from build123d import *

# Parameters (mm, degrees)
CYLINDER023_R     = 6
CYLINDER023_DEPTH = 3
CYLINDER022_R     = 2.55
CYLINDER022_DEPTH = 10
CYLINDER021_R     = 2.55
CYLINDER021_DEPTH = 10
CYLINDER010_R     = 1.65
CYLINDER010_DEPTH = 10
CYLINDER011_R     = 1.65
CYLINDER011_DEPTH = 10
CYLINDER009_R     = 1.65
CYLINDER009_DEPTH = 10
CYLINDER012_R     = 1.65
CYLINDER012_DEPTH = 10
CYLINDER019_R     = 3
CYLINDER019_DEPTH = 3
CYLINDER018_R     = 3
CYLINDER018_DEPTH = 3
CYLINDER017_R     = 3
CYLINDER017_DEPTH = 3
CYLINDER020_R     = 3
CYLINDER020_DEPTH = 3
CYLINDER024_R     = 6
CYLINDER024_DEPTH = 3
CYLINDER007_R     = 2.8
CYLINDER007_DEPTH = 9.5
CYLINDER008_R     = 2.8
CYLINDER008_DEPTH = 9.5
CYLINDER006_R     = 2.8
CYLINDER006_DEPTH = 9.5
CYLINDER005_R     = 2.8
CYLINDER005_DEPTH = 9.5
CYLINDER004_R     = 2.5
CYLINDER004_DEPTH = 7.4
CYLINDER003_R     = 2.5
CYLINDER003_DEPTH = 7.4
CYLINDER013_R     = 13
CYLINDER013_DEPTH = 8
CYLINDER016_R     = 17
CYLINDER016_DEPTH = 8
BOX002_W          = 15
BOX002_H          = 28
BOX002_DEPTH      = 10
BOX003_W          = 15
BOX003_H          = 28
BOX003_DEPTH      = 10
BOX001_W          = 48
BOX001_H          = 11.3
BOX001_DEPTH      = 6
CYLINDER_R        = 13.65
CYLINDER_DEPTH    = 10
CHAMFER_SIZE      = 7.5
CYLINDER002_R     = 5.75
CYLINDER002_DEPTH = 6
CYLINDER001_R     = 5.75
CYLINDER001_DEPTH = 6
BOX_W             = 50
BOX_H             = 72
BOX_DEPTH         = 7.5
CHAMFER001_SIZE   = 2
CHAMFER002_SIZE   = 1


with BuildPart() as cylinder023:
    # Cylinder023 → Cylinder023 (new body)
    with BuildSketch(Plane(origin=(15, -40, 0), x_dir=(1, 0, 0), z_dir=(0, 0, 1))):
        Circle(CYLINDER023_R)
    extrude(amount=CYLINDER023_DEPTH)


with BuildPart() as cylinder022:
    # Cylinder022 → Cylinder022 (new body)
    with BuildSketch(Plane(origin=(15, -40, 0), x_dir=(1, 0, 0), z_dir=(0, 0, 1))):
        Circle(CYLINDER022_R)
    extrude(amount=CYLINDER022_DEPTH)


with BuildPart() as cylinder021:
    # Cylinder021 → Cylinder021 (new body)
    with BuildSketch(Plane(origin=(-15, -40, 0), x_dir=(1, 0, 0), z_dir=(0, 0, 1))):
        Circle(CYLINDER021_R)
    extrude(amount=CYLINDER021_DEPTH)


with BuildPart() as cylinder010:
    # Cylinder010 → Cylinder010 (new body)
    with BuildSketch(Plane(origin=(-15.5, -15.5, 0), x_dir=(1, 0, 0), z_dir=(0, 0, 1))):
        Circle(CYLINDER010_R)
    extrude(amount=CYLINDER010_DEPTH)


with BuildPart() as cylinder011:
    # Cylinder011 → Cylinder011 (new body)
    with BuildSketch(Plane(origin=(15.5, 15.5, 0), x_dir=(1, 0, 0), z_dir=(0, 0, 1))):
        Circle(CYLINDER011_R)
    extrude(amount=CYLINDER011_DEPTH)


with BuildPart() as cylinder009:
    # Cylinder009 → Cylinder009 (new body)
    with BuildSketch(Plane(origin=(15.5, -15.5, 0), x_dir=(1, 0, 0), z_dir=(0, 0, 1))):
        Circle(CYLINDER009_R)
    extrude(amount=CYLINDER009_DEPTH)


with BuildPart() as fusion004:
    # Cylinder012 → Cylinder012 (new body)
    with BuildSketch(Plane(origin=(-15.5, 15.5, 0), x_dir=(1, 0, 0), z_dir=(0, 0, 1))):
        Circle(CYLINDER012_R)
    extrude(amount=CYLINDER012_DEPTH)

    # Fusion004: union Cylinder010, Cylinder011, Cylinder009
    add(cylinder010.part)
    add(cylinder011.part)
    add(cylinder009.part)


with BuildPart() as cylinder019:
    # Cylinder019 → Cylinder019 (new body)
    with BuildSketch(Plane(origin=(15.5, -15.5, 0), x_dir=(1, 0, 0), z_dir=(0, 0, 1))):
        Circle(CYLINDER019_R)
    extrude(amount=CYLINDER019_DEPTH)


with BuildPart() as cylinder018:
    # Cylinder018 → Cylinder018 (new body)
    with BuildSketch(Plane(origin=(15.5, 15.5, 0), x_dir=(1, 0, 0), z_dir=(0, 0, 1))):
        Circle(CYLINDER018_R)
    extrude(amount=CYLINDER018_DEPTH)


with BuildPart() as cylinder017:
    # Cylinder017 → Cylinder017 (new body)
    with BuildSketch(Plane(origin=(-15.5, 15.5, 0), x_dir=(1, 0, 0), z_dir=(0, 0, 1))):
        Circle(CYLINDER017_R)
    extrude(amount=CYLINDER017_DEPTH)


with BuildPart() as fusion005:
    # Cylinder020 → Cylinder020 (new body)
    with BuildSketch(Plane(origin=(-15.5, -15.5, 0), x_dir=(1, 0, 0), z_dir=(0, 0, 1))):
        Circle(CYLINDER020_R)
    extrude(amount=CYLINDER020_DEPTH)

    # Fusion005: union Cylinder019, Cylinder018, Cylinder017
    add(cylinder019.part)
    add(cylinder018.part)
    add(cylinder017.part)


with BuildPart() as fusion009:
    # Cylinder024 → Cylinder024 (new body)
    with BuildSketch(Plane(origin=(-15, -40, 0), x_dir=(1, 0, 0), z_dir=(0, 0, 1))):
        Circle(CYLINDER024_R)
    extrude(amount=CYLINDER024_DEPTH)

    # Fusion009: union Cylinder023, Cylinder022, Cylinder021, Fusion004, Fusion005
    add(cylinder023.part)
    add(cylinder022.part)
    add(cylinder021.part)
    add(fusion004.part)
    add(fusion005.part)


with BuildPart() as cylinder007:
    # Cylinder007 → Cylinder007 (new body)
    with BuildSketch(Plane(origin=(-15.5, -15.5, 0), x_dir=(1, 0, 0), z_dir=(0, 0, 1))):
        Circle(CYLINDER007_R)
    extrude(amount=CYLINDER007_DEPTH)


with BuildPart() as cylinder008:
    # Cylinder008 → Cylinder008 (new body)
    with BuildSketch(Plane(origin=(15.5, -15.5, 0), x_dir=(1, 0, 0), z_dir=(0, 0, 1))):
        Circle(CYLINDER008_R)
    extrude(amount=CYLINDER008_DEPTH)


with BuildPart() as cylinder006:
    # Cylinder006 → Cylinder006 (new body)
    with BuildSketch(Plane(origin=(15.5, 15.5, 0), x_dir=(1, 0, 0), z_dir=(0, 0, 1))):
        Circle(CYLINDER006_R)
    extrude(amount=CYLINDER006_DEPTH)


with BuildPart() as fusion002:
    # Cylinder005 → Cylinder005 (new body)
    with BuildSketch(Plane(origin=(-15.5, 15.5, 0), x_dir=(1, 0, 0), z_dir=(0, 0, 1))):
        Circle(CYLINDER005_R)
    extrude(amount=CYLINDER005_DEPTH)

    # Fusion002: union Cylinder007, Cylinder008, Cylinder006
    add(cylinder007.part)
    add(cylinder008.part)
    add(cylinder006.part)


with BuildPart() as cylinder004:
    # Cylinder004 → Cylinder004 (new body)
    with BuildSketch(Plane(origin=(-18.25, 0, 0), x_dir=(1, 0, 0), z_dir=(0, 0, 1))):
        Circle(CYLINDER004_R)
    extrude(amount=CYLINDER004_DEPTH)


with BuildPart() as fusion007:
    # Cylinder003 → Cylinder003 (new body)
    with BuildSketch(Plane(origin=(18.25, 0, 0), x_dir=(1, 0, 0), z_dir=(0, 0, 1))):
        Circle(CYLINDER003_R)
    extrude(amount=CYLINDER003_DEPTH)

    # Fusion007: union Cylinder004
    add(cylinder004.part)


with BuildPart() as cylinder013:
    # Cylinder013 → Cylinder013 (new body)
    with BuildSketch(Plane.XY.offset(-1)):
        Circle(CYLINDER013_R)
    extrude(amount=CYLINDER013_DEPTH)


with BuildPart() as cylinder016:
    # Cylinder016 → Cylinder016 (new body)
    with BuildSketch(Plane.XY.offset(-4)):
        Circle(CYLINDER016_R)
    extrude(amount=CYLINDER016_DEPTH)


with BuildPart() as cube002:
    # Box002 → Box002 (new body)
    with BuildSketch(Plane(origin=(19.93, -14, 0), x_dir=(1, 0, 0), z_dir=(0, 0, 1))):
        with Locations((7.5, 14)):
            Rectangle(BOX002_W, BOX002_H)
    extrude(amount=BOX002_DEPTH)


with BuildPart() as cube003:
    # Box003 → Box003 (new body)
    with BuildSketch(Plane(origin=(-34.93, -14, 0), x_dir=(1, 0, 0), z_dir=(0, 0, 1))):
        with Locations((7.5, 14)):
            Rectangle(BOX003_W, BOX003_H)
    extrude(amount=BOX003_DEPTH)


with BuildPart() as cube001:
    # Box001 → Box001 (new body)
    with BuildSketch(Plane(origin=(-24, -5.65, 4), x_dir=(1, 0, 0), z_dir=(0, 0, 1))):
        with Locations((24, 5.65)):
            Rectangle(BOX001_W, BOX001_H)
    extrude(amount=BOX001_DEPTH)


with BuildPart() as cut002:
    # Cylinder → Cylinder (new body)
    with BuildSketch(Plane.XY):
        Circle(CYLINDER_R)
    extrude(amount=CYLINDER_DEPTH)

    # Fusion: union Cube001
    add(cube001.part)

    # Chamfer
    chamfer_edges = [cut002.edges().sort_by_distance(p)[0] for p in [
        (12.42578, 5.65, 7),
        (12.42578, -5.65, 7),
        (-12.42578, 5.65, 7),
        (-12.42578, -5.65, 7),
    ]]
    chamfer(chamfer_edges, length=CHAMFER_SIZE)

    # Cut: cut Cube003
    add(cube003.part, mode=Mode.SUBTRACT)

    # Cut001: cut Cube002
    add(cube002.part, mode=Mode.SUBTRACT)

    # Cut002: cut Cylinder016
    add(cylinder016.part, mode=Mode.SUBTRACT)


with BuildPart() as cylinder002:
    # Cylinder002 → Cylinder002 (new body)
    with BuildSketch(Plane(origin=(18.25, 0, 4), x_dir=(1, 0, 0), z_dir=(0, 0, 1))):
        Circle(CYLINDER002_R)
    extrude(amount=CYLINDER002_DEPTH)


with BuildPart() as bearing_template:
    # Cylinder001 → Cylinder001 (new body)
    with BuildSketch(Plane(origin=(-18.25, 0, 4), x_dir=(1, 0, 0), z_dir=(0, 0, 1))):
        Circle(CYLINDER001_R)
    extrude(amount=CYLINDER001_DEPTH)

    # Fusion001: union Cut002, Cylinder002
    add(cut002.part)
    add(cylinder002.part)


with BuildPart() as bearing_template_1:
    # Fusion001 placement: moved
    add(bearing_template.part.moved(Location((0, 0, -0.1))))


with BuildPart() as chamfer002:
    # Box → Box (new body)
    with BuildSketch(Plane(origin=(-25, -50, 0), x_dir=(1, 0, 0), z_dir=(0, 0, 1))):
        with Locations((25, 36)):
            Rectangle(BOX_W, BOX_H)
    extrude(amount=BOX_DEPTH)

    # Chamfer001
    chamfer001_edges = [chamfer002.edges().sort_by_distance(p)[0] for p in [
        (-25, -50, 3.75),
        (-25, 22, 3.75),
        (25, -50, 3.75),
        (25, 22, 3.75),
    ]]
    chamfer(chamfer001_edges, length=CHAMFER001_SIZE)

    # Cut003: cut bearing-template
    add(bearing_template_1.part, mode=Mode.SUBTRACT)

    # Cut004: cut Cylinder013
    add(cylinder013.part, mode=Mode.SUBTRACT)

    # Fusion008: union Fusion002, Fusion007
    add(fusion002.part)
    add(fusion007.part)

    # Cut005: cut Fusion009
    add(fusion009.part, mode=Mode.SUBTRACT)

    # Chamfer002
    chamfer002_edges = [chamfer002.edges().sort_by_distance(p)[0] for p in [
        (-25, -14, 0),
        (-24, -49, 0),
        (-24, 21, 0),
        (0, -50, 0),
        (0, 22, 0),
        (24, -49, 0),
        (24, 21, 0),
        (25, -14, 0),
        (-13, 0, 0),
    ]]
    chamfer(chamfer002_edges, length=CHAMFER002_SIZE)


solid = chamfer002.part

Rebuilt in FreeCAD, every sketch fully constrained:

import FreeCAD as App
import Part
import Sketcher


def edges_at(feature, points):
    """Names of the edges that pass closest to the given points."""
    edges = feature.Shape.Edges
    near = lambda p: min(range(len(edges)), key=lambda i: edges[i].distToShape(Part.Vertex(*p))[0])
    return sorted({f"Edge{near(p) + 1}" for p in points})

doc = App.newDocument("Part")
body = doc.addObject("PartDesign::Body", "Body")

sketch1 = body.newObject("Sketcher::SketchObject", "Sketch")
sketch1.AttachmentSupport = (doc.getObject("XY_Plane"), [""])
sketch1.MapMode = "FlatFace"
sketch1.addGeometry(Part.Circle(App.Vector(15, -40, 0), App.Vector(0, 0, 1), 6), False)
sketch1.addConstraint([
    Sketcher.Constraint("Diameter", 0, 12.0),
    Sketcher.Constraint("DistanceX", -1, 1, 0, 3, 15.0),
    Sketcher.Constraint("DistanceY", 0, 3, -1, 1, 40.0),
])
pad1 = body.newObject("PartDesign::Pad", "Pad")
pad1.Profile = sketch1
pad1.Length = 3
body2 = doc.addObject("PartDesign::Body", "Body001")

sketch2 = body2.newObject("Sketcher::SketchObject", "Sketch001")
sketch2.AttachmentSupport = (doc.getObject("XY_Plane001"), [""])
sketch2.MapMode = "FlatFace"
sketch2.addGeometry(Part.Circle(App.Vector(15, -40, 0), App.Vector(0, 0, 1), 2.55), False)
sketch2.addConstraint([
    Sketcher.Constraint("Diameter", 0, 5.1),
    Sketcher.Constraint("DistanceX", -1, 1, 0, 3, 15.0),
    Sketcher.Constraint("DistanceY", 0, 3, -1, 1, 40.0),
])
pad2 = body2.newObject("PartDesign::Pad", "Pad001")
pad2.Profile = sketch2
pad2.Length = 10
body3 = doc.addObject("PartDesign::Body", "Body002")

sketch3 = body3.newObject("Sketcher::SketchObject", "Sketch002")
sketch3.AttachmentSupport = (doc.getObject("XY_Plane002"), [""])
sketch3.MapMode = "FlatFace"
sketch3.addGeometry(Part.Circle(App.Vector(-15, -40, 0), App.Vector(0, 0, 1), 2.55), False)
sketch3.addConstraint([
    Sketcher.Constraint("Diameter", 0, 5.1),
    Sketcher.Constraint("DistanceX", 0, 3, -1, 1, 15.0),
    Sketcher.Constraint("DistanceY", 0, 3, -1, 1, 40.0),
])
pad3 = body3.newObject("PartDesign::Pad", "Pad002")
pad3.Profile = sketch3
pad3.Length = 10
body4 = doc.addObject("PartDesign::Body", "Body003")

sketch4 = body4.newObject("Sketcher::SketchObject", "Sketch003")
sketch4.AttachmentSupport = (doc.getObject("XY_Plane003"), [""])
sketch4.MapMode = "FlatFace"
sketch4.addGeometry(Part.Circle(App.Vector(-15.5, -15.5, 0), App.Vector(0, 0, 1), 1.65), False)
sketch4.addConstraint([
    Sketcher.Constraint("Diameter", 0, 3.3),
    Sketcher.Constraint("DistanceX", 0, 3, -1, 1, 15.5),
    Sketcher.Constraint("DistanceY", 0, 3, -1, 1, 15.5),
])
pad4 = body4.newObject("PartDesign::Pad", "Pad003")
pad4.Profile = sketch4
pad4.Length = 10
body5 = doc.addObject("PartDesign::Body", "Body004")

sketch5 = body5.newObject("Sketcher::SketchObject", "Sketch004")
sketch5.AttachmentSupport = (doc.getObject("XY_Plane004"), [""])
sketch5.MapMode = "FlatFace"
sketch5.addGeometry(Part.Circle(App.Vector(15.5, 15.5, 0), App.Vector(0, 0, 1), 1.65), False)
sketch5.addConstraint([
    Sketcher.Constraint("Diameter", 0, 3.3),
    Sketcher.Constraint("DistanceX", -1, 1, 0, 3, 15.5),
    Sketcher.Constraint("DistanceY", -1, 1, 0, 3, 15.5),
])
pad5 = body5.newObject("PartDesign::Pad", "Pad004")
pad5.Profile = sketch5
pad5.Length = 10
body6 = doc.addObject("PartDesign::Body", "Body005")

sketch6 = body6.newObject("Sketcher::SketchObject", "Sketch005")
sketch6.AttachmentSupport = (doc.getObject("XY_Plane005"), [""])
sketch6.MapMode = "FlatFace"
sketch6.addGeometry(Part.Circle(App.Vector(15.5, -15.5, 0), App.Vector(0, 0, 1), 1.65), False)
sketch6.addConstraint([
    Sketcher.Constraint("Diameter", 0, 3.3),
    Sketcher.Constraint("DistanceX", -1, 1, 0, 3, 15.5),
    Sketcher.Constraint("DistanceY", 0, 3, -1, 1, 15.5),
])
pad6 = body6.newObject("PartDesign::Pad", "Pad005")
pad6.Profile = sketch6
pad6.Length = 10
body7 = doc.addObject("PartDesign::Body", "Body006")
body7.AllowCompound = True

sketch7 = body7.newObject("Sketcher::SketchObject", "Sketch006")
sketch7.AttachmentSupport = (doc.getObject("XY_Plane006"), [""])
sketch7.MapMode = "FlatFace"
sketch7.addGeometry(Part.Circle(App.Vector(-15.5, 15.5, 0), App.Vector(0, 0, 1), 1.65), False)
sketch7.addConstraint([
    Sketcher.Constraint("Diameter", 0, 3.3),
    Sketcher.Constraint("DistanceX", 0, 3, -1, 1, 15.5),
    Sketcher.Constraint("DistanceY", -1, 1, 0, 3, 15.5),
])
pad7 = body7.newObject("PartDesign::Pad", "Pad006")
pad7.Profile = sketch7
pad7.Length = 10
doc.recompute()

boolean = body7.newObject("PartDesign::Boolean", "Boolean")
boolean.Type = "Fuse"
boolean.addObjects([body4])
doc.recompute()

boolean2 = body7.newObject("PartDesign::Boolean", "Boolean001")
boolean2.Type = "Fuse"
boolean2.addObjects([body5])
doc.recompute()

boolean3 = body7.newObject("PartDesign::Boolean", "Boolean002")
boolean3.Type = "Fuse"
boolean3.addObjects([body6])
body8 = doc.addObject("PartDesign::Body", "Body007")

sketch8 = body8.newObject("Sketcher::SketchObject", "Sketch007")
sketch8.AttachmentSupport = (doc.getObject("XY_Plane007"), [""])
sketch8.MapMode = "FlatFace"
sketch8.addGeometry(Part.Circle(App.Vector(15.5, -15.5, 0), App.Vector(0, 0, 1), 3), False)
sketch8.addConstraint([
    Sketcher.Constraint("Diameter", 0, 6.0),
    Sketcher.Constraint("DistanceX", -1, 1, 0, 3, 15.5),
    Sketcher.Constraint("DistanceY", 0, 3, -1, 1, 15.5),
])
pad8 = body8.newObject("PartDesign::Pad", "Pad007")
pad8.Profile = sketch8
pad8.Length = 3
body9 = doc.addObject("PartDesign::Body", "Body008")

sketch9 = body9.newObject("Sketcher::SketchObject", "Sketch008")
sketch9.AttachmentSupport = (doc.getObject("XY_Plane008"), [""])
sketch9.MapMode = "FlatFace"
sketch9.addGeometry(Part.Circle(App.Vector(15.5, 15.5, 0), App.Vector(0, 0, 1), 3), False)
sketch9.addConstraint([
    Sketcher.Constraint("Diameter", 0, 6.0),
    Sketcher.Constraint("DistanceX", -1, 1, 0, 3, 15.5),
    Sketcher.Constraint("DistanceY", -1, 1, 0, 3, 15.5),
])
pad9 = body9.newObject("PartDesign::Pad", "Pad008")
pad9.Profile = sketch9
pad9.Length = 3
body10 = doc.addObject("PartDesign::Body", "Body009")

sketch10 = body10.newObject("Sketcher::SketchObject", "Sketch009")
sketch10.AttachmentSupport = (doc.getObject("XY_Plane009"), [""])
sketch10.MapMode = "FlatFace"
sketch10.addGeometry(Part.Circle(App.Vector(-15.5, 15.5, 0), App.Vector(0, 0, 1), 3), False)
sketch10.addConstraint([
    Sketcher.Constraint("Diameter", 0, 6.0),
    Sketcher.Constraint("DistanceX", 0, 3, -1, 1, 15.5),
    Sketcher.Constraint("DistanceY", -1, 1, 0, 3, 15.5),
])
pad10 = body10.newObject("PartDesign::Pad", "Pad009")
pad10.Profile = sketch10
pad10.Length = 3
body11 = doc.addObject("PartDesign::Body", "Body010")
body11.AllowCompound = True

sketch11 = body11.newObject("Sketcher::SketchObject", "Sketch010")
sketch11.AttachmentSupport = (doc.getObject("XY_Plane010"), [""])
sketch11.MapMode = "FlatFace"
sketch11.addGeometry(Part.Circle(App.Vector(-15.5, -15.5, 0), App.Vector(0, 0, 1), 3), False)
sketch11.addConstraint([
    Sketcher.Constraint("Diameter", 0, 6.0),
    Sketcher.Constraint("DistanceX", 0, 3, -1, 1, 15.5),
    Sketcher.Constraint("DistanceY", 0, 3, -1, 1, 15.5),
])
pad11 = body11.newObject("PartDesign::Pad", "Pad010")
pad11.Profile = sketch11
pad11.Length = 3
doc.recompute()

boolean4 = body11.newObject("PartDesign::Boolean", "Boolean003")
boolean4.Type = "Fuse"
boolean4.addObjects([body8])
doc.recompute()

boolean5 = body11.newObject("PartDesign::Boolean", "Boolean004")
boolean5.Type = "Fuse"
boolean5.addObjects([body9])
doc.recompute()

boolean6 = body11.newObject("PartDesign::Boolean", "Boolean005")
boolean6.Type = "Fuse"
boolean6.addObjects([body10])
body12 = doc.addObject("PartDesign::Body", "Body011")
body12.AllowCompound = True

sketch12 = body12.newObject("Sketcher::SketchObject", "Sketch011")
sketch12.AttachmentSupport = (doc.getObject("XY_Plane011"), [""])
sketch12.MapMode = "FlatFace"
sketch12.addGeometry(Part.Circle(App.Vector(-15, -40, 0), App.Vector(0, 0, 1), 6), False)
sketch12.addConstraint([
    Sketcher.Constraint("Diameter", 0, 12.0),
    Sketcher.Constraint("DistanceX", 0, 3, -1, 1, 15.0),
    Sketcher.Constraint("DistanceY", 0, 3, -1, 1, 40.0),
])
pad12 = body12.newObject("PartDesign::Pad", "Pad011")
pad12.Profile = sketch12
pad12.Length = 3
doc.recompute()

boolean7 = body12.newObject("PartDesign::Boolean", "Boolean006")
boolean7.Type = "Fuse"
boolean7.addObjects([body])
doc.recompute()

boolean8 = body12.newObject("PartDesign::Boolean", "Boolean007")
boolean8.Type = "Fuse"
boolean8.addObjects([body2])
doc.recompute()

boolean9 = body12.newObject("PartDesign::Boolean", "Boolean008")
boolean9.Type = "Fuse"
boolean9.addObjects([body3])
doc.recompute()

boolean10 = body12.newObject("PartDesign::Boolean", "Boolean009")
boolean10.Type = "Fuse"
boolean10.addObjects([body7])
doc.recompute()

boolean11 = body12.newObject("PartDesign::Boolean", "Boolean010")
boolean11.Type = "Fuse"
boolean11.addObjects([body11])
body13 = doc.addObject("PartDesign::Body", "Body012")

sketch13 = body13.newObject("Sketcher::SketchObject", "Sketch012")
sketch13.AttachmentSupport = (doc.getObject("XY_Plane012"), [""])
sketch13.MapMode = "FlatFace"
sketch13.addGeometry(Part.Circle(App.Vector(-15.5, -15.5, 0), App.Vector(0, 0, 1), 2.8), False)
sketch13.addConstraint([
    Sketcher.Constraint("Diameter", 0, 5.6),
    Sketcher.Constraint("DistanceX", 0, 3, -1, 1, 15.5),
    Sketcher.Constraint("DistanceY", 0, 3, -1, 1, 15.5),
])
pad13 = body13.newObject("PartDesign::Pad", "Pad012")
pad13.Profile = sketch13
pad13.Length = 9.5
body14 = doc.addObject("PartDesign::Body", "Body013")

sketch14 = body14.newObject("Sketcher::SketchObject", "Sketch013")
sketch14.AttachmentSupport = (doc.getObject("XY_Plane013"), [""])
sketch14.MapMode = "FlatFace"
sketch14.addGeometry(Part.Circle(App.Vector(15.5, -15.5, 0), App.Vector(0, 0, 1), 2.8), False)
sketch14.addConstraint([
    Sketcher.Constraint("Diameter", 0, 5.6),
    Sketcher.Constraint("DistanceX", -1, 1, 0, 3, 15.5),
    Sketcher.Constraint("DistanceY", 0, 3, -1, 1, 15.5),
])
pad14 = body14.newObject("PartDesign::Pad", "Pad013")
pad14.Profile = sketch14
pad14.Length = 9.5
body15 = doc.addObject("PartDesign::Body", "Body014")

sketch15 = body15.newObject("Sketcher::SketchObject", "Sketch014")
sketch15.AttachmentSupport = (doc.getObject("XY_Plane014"), [""])
sketch15.MapMode = "FlatFace"
sketch15.addGeometry(Part.Circle(App.Vector(15.5, 15.5, 0), App.Vector(0, 0, 1), 2.8), False)
sketch15.addConstraint([
    Sketcher.Constraint("Diameter", 0, 5.6),
    Sketcher.Constraint("DistanceX", -1, 1, 0, 3, 15.5),
    Sketcher.Constraint("DistanceY", -1, 1, 0, 3, 15.5),
])
pad15 = body15.newObject("PartDesign::Pad", "Pad014")
pad15.Profile = sketch15
pad15.Length = 9.5
body16 = doc.addObject("PartDesign::Body", "Body015")
body16.AllowCompound = True

sketch16 = body16.newObject("Sketcher::SketchObject", "Sketch015")
sketch16.AttachmentSupport = (doc.getObject("XY_Plane015"), [""])
sketch16.MapMode = "FlatFace"
sketch16.addGeometry(Part.Circle(App.Vector(-15.5, 15.5, 0), App.Vector(0, 0, 1), 2.8), False)
sketch16.addConstraint([
    Sketcher.Constraint("Diameter", 0, 5.6),
    Sketcher.Constraint("DistanceX", 0, 3, -1, 1, 15.5),
    Sketcher.Constraint("DistanceY", -1, 1, 0, 3, 15.5),
])
pad16 = body16.newObject("PartDesign::Pad", "Pad015")
pad16.Profile = sketch16
pad16.Length = 9.5
doc.recompute()

boolean12 = body16.newObject("PartDesign::Boolean", "Boolean011")
boolean12.Type = "Fuse"
boolean12.addObjects([body13])
doc.recompute()

boolean13 = body16.newObject("PartDesign::Boolean", "Boolean012")
boolean13.Type = "Fuse"
boolean13.addObjects([body14])
doc.recompute()

boolean14 = body16.newObject("PartDesign::Boolean", "Boolean013")
boolean14.Type = "Fuse"
boolean14.addObjects([body15])
body17 = doc.addObject("PartDesign::Body", "Body016")

sketch17 = body17.newObject("Sketcher::SketchObject", "Sketch016")
sketch17.AttachmentSupport = (doc.getObject("XY_Plane016"), [""])
sketch17.MapMode = "FlatFace"
sketch17.addGeometry(Part.Circle(App.Vector(-18.25, 0, 0), App.Vector(0, 0, 1), 2.5), False)
sketch17.addConstraint([
    Sketcher.Constraint("PointOnObject", 0, 3, -1),
    Sketcher.Constraint("Diameter", 0, 5.0),
    Sketcher.Constraint("DistanceX", 0, 3, -1, 1, 18.25),
])
pad17 = body17.newObject("PartDesign::Pad", "Pad016")
pad17.Profile = sketch17
pad17.Length = 7.4
body18 = doc.addObject("PartDesign::Body", "Body017")
body18.AllowCompound = True

sketch18 = body18.newObject("Sketcher::SketchObject", "Sketch017")
sketch18.AttachmentSupport = (doc.getObject("XY_Plane017"), [""])
sketch18.MapMode = "FlatFace"
sketch18.addGeometry(Part.Circle(App.Vector(18.25, 0, 0), App.Vector(0, 0, 1), 2.5), False)
sketch18.addConstraint([
    Sketcher.Constraint("PointOnObject", 0, 3, -1),
    Sketcher.Constraint("Diameter", 0, 5.0),
    Sketcher.Constraint("DistanceX", -1, 1, 0, 3, 18.25),
])
pad18 = body18.newObject("PartDesign::Pad", "Pad017")
pad18.Profile = sketch18
pad18.Length = 7.4
doc.recompute()

boolean15 = body18.newObject("PartDesign::Boolean", "Boolean014")
boolean15.Type = "Fuse"
boolean15.addObjects([body17])
body19 = doc.addObject("PartDesign::Body", "Body018")

sketch19 = body19.newObject("Sketcher::SketchObject", "Sketch018")
sketch19.AttachmentSupport = (doc.getObject("XY_Plane018"), [""])
sketch19.MapMode = "FlatFace"
sketch19.AttachmentOffset = App.Placement(App.Vector(0, 0, -1), App.Rotation())
sketch19.addGeometry(Part.Circle(App.Vector(0, 0, 0), App.Vector(0, 0, 1), 13), False)
sketch19.addConstraint([
    Sketcher.Constraint("Coincident", 0, 3, -1, 1),
    Sketcher.Constraint("Diameter", 0, 26.0),
])
pad19 = body19.newObject("PartDesign::Pad", "Pad018")
pad19.Profile = sketch19
pad19.Length = 8
body20 = doc.addObject("PartDesign::Body", "Body019")

sketch20 = body20.newObject("Sketcher::SketchObject", "Sketch019")
sketch20.AttachmentSupport = (doc.getObject("XY_Plane019"), [""])
sketch20.MapMode = "FlatFace"
sketch20.AttachmentOffset = App.Placement(App.Vector(0, 0, -4), App.Rotation())
sketch20.addGeometry(Part.Circle(App.Vector(0, 0, 0), App.Vector(0, 0, 1), 17), False)
sketch20.addConstraint([
    Sketcher.Constraint("Coincident", 0, 3, -1, 1),
    Sketcher.Constraint("Diameter", 0, 34.0),
])
pad20 = body20.newObject("PartDesign::Pad", "Pad019")
pad20.Profile = sketch20
pad20.Length = 8
body21 = doc.addObject("PartDesign::Body", "Body020")

sketch21 = body21.newObject("Sketcher::SketchObject", "Sketch020")
sketch21.AttachmentSupport = (doc.getObject("XY_Plane020"), [""])
sketch21.MapMode = "FlatFace"
sketch21.addGeometry([
    Part.LineSegment(App.Vector(19.93, 14, 0), App.Vector(19.93, -14, 0)),
    Part.LineSegment(App.Vector(19.93, -14, 0), App.Vector(34.93, -14, 0)),
    Part.LineSegment(App.Vector(34.93, -14, 0), App.Vector(34.93, 14, 0)),
    Part.LineSegment(App.Vector(34.93, 14, 0), App.Vector(19.93, 14, 0)),
], False)
sketch21.addConstraint([
    Sketcher.Constraint("Coincident", 0, 2, 1, 1),
    Sketcher.Constraint("Coincident", 1, 2, 2, 1),
    Sketcher.Constraint("Coincident", 2, 2, 3, 1),
    Sketcher.Constraint("Coincident", 3, 2, 0, 1),
    Sketcher.Constraint("Vertical", 0),
    Sketcher.Constraint("Horizontal", 1),
    Sketcher.Constraint("Vertical", 2),
    Sketcher.Constraint("Horizontal", 3),
    Sketcher.Constraint("DistanceX", 1, 1, 1, 2, 15.0),
    Sketcher.Constraint("DistanceY", 0, 2, 0, 1, 28.0),
    Sketcher.Constraint("DistanceY", 0, 2, -1, 1, 14.0),
    Sketcher.Constraint("DistanceX", -1, 1, 0, 2, 19.93),
])
pad21 = body21.newObject("PartDesign::Pad", "Pad020")
pad21.Profile = sketch21
pad21.Length = 10
body22 = doc.addObject("PartDesign::Body", "Body021")

sketch22 = body22.newObject("Sketcher::SketchObject", "Sketch021")
sketch22.AttachmentSupport = (doc.getObject("XY_Plane021"), [""])
sketch22.MapMode = "FlatFace"
sketch22.addGeometry([
    Part.LineSegment(App.Vector(-34.93, 14, 0), App.Vector(-34.93, -14, 0)),
    Part.LineSegment(App.Vector(-34.93, -14, 0), App.Vector(-19.93, -14, 0)),
    Part.LineSegment(App.Vector(-19.93, -14, 0), App.Vector(-19.93, 14, 0)),
    Part.LineSegment(App.Vector(-19.93, 14, 0), App.Vector(-34.93, 14, 0)),
], False)
sketch22.addConstraint([
    Sketcher.Constraint("Coincident", 0, 2, 1, 1),
    Sketcher.Constraint("Coincident", 1, 2, 2, 1),
    Sketcher.Constraint("Coincident", 2, 2, 3, 1),
    Sketcher.Constraint("Coincident", 3, 2, 0, 1),
    Sketcher.Constraint("Vertical", 0),
    Sketcher.Constraint("Horizontal", 1),
    Sketcher.Constraint("Vertical", 2),
    Sketcher.Constraint("Horizontal", 3),
    Sketcher.Constraint("DistanceX", 1, 1, 1, 2, 15.0),
    Sketcher.Constraint("DistanceY", 0, 2, 0, 1, 28.0),
    Sketcher.Constraint("DistanceY", 0, 2, -1, 1, 14.0),
    Sketcher.Constraint("DistanceX", 0, 2, -1, 1, 34.93),
])
pad22 = body22.newObject("PartDesign::Pad", "Pad021")
pad22.Profile = sketch22
pad22.Length = 10
body23 = doc.addObject("PartDesign::Body", "Body022")

sketch23 = body23.newObject("Sketcher::SketchObject", "Sketch022")
sketch23.AttachmentSupport = (doc.getObject("XY_Plane022"), [""])
sketch23.MapMode = "FlatFace"
sketch23.AttachmentOffset = App.Placement(App.Vector(0, 0, 4), App.Rotation())
sketch23.addGeometry([
    Part.LineSegment(App.Vector(-24, 5.65, 0), App.Vector(-24, -5.65, 0)),
    Part.LineSegment(App.Vector(-24, -5.65, 0), App.Vector(24, -5.65, 0)),
    Part.LineSegment(App.Vector(24, -5.65, 0), App.Vector(24, 5.65, 0)),
    Part.LineSegment(App.Vector(24, 5.65, 0), App.Vector(-24, 5.65, 0)),
], False)
sketch23.addConstraint([
    Sketcher.Constraint("Coincident", 0, 2, 1, 1),
    Sketcher.Constraint("Coincident", 1, 2, 2, 1),
    Sketcher.Constraint("Coincident", 2, 2, 3, 1),
    Sketcher.Constraint("Coincident", 3, 2, 0, 1),
    Sketcher.Constraint("Vertical", 0),
    Sketcher.Constraint("Horizontal", 1),
    Sketcher.Constraint("Vertical", 2),
    Sketcher.Constraint("Horizontal", 3),
    Sketcher.Constraint("Symmetric", 0, 2, 2, 2, -1, 1),
    Sketcher.Constraint("DistanceX", 1, 1, 1, 2, 48.0),
    Sketcher.Constraint("DistanceY", 0, 2, 0, 1, 11.3),
])
pad23 = body23.newObject("PartDesign::Pad", "Pad022")
pad23.Profile = sketch23
pad23.Length = 6
body24 = doc.addObject("PartDesign::Body", "Body023")

sketch24 = body24.newObject("Sketcher::SketchObject", "Sketch023")
sketch24.AttachmentSupport = (doc.getObject("XY_Plane023"), [""])
sketch24.MapMode = "FlatFace"
sketch24.addGeometry(Part.Circle(App.Vector(0, 0, 0), App.Vector(0, 0, 1), 13.65), False)
sketch24.addConstraint([
    Sketcher.Constraint("Coincident", 0, 3, -1, 1),
    Sketcher.Constraint("Diameter", 0, 27.3),
])
pad24 = body24.newObject("PartDesign::Pad", "Pad023")
pad24.Profile = sketch24
pad24.Length = 10
doc.recompute()

boolean16 = body24.newObject("PartDesign::Boolean", "Boolean015")
boolean16.Type = "Fuse"
boolean16.addObjects([body23])
doc.recompute()

chamfer = body24.newObject("PartDesign::Chamfer", "Chamfer")
chamfer.Base = (boolean16, edges_at(boolean16, [
    (12.426, 5.65, 7),
    (12.426, -5.65, 7),
    (-12.426, 5.65, 7),
    (-12.426, -5.65, 7),
]))
chamfer.Size = 7.5
doc.recompute()

boolean17 = body24.newObject("PartDesign::Boolean", "Boolean016")
boolean17.Type = "Cut"
boolean17.addObjects([body22])
doc.recompute()

boolean18 = body24.newObject("PartDesign::Boolean", "Boolean017")
boolean18.Type = "Cut"
boolean18.addObjects([body21])
doc.recompute()

boolean19 = body24.newObject("PartDesign::Boolean", "Boolean018")
boolean19.Type = "Cut"
boolean19.addObjects([body20])
body25 = doc.addObject("PartDesign::Body", "Body024")

sketch25 = body25.newObject("Sketcher::SketchObject", "Sketch024")
sketch25.AttachmentSupport = (doc.getObject("XY_Plane024"), [""])
sketch25.MapMode = "FlatFace"
sketch25.AttachmentOffset = App.Placement(App.Vector(0, 0, 4), App.Rotation())
sketch25.addGeometry(Part.Circle(App.Vector(18.25, 0, 0), App.Vector(0, 0, 1), 5.75), False)
sketch25.addConstraint([
    Sketcher.Constraint("PointOnObject", 0, 3, -1),
    Sketcher.Constraint("Diameter", 0, 11.5),
    Sketcher.Constraint("DistanceX", -1, 1, 0, 3, 18.25),
])
pad25 = body25.newObject("PartDesign::Pad", "Pad024")
pad25.Profile = sketch25
pad25.Length = 6
body26 = doc.addObject("PartDesign::Body", "Body025")

sketch26 = body26.newObject("Sketcher::SketchObject", "Sketch025")
sketch26.AttachmentSupport = (doc.getObject("XY_Plane025"), [""])
sketch26.MapMode = "FlatFace"
sketch26.AttachmentOffset = App.Placement(App.Vector(0, 0, 4), App.Rotation())
sketch26.addGeometry(Part.Circle(App.Vector(-18.25, 0, 0), App.Vector(0, 0, 1), 5.75), False)
sketch26.addConstraint([
    Sketcher.Constraint("PointOnObject", 0, 3, -1),
    Sketcher.Constraint("Diameter", 0, 11.5),
    Sketcher.Constraint("DistanceX", 0, 3, -1, 1, 18.25),
])
pad26 = body26.newObject("PartDesign::Pad", "Pad025")
pad26.Profile = sketch26
pad26.Length = 6
doc.recompute()

boolean20 = body26.newObject("PartDesign::Boolean", "Boolean019")
boolean20.Type = "Fuse"
boolean20.addObjects([body24])
doc.recompute()

boolean21 = body26.newObject("PartDesign::Boolean", "Boolean020")
boolean21.Type = "Fuse"
boolean21.addObjects([body25])
body27 = doc.addObject("PartDesign::Body", "Body026")
doc.recompute()

body26.Placement = App.Placement(App.Vector(0, 0, -0.1), App.Rotation(App.Vector(0, 0, 1), 0))
boolean22 = body27.newObject("PartDesign::Boolean", "Boolean021")
boolean22.Type = "Fuse"
boolean22.addObjects([body26])
body28 = doc.addObject("PartDesign::Body", "Body027")

sketch27 = body28.newObject("Sketcher::SketchObject", "Sketch026")
sketch27.AttachmentSupport = (doc.getObject("XY_Plane027"), [""])
sketch27.MapMode = "FlatFace"
sketch27.addGeometry([
    Part.LineSegment(App.Vector(-25, 22, 0), App.Vector(-25, -50, 0)),
    Part.LineSegment(App.Vector(-25, -50, 0), App.Vector(25, -50, 0)),
    Part.LineSegment(App.Vector(25, -50, 0), App.Vector(25, 22, 0)),
    Part.LineSegment(App.Vector(25, 22, 0), App.Vector(-25, 22, 0)),
], False)
sketch27.addConstraint([
    Sketcher.Constraint("Coincident", 0, 2, 1, 1),
    Sketcher.Constraint("Coincident", 1, 2, 2, 1),
    Sketcher.Constraint("Coincident", 2, 2, 3, 1),
    Sketcher.Constraint("Coincident", 3, 2, 0, 1),
    Sketcher.Constraint("Vertical", 0),
    Sketcher.Constraint("Horizontal", 1),
    Sketcher.Constraint("Vertical", 2),
    Sketcher.Constraint("Horizontal", 3),
    Sketcher.Constraint("DistanceX", 1, 1, 1, 2, 50.0),
    Sketcher.Constraint("DistanceY", 0, 2, 0, 1, 72.0),
    Sketcher.Constraint("DistanceX", 0, 2, -1, 1, 25.0),
    Sketcher.Constraint("DistanceY", 0, 2, -1, 1, 50.0),
])
pad27 = body28.newObject("PartDesign::Pad", "Pad026")
pad27.Profile = sketch27
pad27.Length = 7.5
doc.recompute()

chamfer2 = body28.newObject("PartDesign::Chamfer", "Chamfer001")
chamfer2.Base = (pad27, edges_at(pad27, [
    (-25, -50, 3.75),
    (-25, 22, 3.75),
    (25, -50, 3.75),
    (25, 22, 3.75),
]))
chamfer2.Size = 2
doc.recompute()

boolean23 = body28.newObject("PartDesign::Boolean", "Boolean022")
boolean23.Type = "Cut"
boolean23.addObjects([body27])
doc.recompute()

boolean24 = body28.newObject("PartDesign::Boolean", "Boolean023")
boolean24.Type = "Cut"
boolean24.addObjects([body19])
doc.recompute()

boolean25 = body28.newObject("PartDesign::Boolean", "Boolean024")
boolean25.Type = "Fuse"
boolean25.addObjects([body16])
doc.recompute()

boolean26 = body28.newObject("PartDesign::Boolean", "Boolean025")
boolean26.Type = "Fuse"
boolean26.addObjects([body18])
doc.recompute()

boolean27 = body28.newObject("PartDesign::Boolean", "Boolean026")
boolean27.Type = "Cut"
boolean27.addObjects([body12])
doc.recompute()

chamfer3 = body28.newObject("PartDesign::Chamfer", "Chamfer002")
chamfer3.Base = (boolean27, edges_at(boolean27, [
    (-25, -14, 0),
    (-24, -49, 0),
    (-24, 21, 0),
    (0, -50, 0),
    (0, 22, 0),
    (24, -49, 0),
    (24, 21, 0),
    (25, -14, 0),
    (-13, 0, 0),
]))
chamfer3.Size = 1

doc.recompute()
